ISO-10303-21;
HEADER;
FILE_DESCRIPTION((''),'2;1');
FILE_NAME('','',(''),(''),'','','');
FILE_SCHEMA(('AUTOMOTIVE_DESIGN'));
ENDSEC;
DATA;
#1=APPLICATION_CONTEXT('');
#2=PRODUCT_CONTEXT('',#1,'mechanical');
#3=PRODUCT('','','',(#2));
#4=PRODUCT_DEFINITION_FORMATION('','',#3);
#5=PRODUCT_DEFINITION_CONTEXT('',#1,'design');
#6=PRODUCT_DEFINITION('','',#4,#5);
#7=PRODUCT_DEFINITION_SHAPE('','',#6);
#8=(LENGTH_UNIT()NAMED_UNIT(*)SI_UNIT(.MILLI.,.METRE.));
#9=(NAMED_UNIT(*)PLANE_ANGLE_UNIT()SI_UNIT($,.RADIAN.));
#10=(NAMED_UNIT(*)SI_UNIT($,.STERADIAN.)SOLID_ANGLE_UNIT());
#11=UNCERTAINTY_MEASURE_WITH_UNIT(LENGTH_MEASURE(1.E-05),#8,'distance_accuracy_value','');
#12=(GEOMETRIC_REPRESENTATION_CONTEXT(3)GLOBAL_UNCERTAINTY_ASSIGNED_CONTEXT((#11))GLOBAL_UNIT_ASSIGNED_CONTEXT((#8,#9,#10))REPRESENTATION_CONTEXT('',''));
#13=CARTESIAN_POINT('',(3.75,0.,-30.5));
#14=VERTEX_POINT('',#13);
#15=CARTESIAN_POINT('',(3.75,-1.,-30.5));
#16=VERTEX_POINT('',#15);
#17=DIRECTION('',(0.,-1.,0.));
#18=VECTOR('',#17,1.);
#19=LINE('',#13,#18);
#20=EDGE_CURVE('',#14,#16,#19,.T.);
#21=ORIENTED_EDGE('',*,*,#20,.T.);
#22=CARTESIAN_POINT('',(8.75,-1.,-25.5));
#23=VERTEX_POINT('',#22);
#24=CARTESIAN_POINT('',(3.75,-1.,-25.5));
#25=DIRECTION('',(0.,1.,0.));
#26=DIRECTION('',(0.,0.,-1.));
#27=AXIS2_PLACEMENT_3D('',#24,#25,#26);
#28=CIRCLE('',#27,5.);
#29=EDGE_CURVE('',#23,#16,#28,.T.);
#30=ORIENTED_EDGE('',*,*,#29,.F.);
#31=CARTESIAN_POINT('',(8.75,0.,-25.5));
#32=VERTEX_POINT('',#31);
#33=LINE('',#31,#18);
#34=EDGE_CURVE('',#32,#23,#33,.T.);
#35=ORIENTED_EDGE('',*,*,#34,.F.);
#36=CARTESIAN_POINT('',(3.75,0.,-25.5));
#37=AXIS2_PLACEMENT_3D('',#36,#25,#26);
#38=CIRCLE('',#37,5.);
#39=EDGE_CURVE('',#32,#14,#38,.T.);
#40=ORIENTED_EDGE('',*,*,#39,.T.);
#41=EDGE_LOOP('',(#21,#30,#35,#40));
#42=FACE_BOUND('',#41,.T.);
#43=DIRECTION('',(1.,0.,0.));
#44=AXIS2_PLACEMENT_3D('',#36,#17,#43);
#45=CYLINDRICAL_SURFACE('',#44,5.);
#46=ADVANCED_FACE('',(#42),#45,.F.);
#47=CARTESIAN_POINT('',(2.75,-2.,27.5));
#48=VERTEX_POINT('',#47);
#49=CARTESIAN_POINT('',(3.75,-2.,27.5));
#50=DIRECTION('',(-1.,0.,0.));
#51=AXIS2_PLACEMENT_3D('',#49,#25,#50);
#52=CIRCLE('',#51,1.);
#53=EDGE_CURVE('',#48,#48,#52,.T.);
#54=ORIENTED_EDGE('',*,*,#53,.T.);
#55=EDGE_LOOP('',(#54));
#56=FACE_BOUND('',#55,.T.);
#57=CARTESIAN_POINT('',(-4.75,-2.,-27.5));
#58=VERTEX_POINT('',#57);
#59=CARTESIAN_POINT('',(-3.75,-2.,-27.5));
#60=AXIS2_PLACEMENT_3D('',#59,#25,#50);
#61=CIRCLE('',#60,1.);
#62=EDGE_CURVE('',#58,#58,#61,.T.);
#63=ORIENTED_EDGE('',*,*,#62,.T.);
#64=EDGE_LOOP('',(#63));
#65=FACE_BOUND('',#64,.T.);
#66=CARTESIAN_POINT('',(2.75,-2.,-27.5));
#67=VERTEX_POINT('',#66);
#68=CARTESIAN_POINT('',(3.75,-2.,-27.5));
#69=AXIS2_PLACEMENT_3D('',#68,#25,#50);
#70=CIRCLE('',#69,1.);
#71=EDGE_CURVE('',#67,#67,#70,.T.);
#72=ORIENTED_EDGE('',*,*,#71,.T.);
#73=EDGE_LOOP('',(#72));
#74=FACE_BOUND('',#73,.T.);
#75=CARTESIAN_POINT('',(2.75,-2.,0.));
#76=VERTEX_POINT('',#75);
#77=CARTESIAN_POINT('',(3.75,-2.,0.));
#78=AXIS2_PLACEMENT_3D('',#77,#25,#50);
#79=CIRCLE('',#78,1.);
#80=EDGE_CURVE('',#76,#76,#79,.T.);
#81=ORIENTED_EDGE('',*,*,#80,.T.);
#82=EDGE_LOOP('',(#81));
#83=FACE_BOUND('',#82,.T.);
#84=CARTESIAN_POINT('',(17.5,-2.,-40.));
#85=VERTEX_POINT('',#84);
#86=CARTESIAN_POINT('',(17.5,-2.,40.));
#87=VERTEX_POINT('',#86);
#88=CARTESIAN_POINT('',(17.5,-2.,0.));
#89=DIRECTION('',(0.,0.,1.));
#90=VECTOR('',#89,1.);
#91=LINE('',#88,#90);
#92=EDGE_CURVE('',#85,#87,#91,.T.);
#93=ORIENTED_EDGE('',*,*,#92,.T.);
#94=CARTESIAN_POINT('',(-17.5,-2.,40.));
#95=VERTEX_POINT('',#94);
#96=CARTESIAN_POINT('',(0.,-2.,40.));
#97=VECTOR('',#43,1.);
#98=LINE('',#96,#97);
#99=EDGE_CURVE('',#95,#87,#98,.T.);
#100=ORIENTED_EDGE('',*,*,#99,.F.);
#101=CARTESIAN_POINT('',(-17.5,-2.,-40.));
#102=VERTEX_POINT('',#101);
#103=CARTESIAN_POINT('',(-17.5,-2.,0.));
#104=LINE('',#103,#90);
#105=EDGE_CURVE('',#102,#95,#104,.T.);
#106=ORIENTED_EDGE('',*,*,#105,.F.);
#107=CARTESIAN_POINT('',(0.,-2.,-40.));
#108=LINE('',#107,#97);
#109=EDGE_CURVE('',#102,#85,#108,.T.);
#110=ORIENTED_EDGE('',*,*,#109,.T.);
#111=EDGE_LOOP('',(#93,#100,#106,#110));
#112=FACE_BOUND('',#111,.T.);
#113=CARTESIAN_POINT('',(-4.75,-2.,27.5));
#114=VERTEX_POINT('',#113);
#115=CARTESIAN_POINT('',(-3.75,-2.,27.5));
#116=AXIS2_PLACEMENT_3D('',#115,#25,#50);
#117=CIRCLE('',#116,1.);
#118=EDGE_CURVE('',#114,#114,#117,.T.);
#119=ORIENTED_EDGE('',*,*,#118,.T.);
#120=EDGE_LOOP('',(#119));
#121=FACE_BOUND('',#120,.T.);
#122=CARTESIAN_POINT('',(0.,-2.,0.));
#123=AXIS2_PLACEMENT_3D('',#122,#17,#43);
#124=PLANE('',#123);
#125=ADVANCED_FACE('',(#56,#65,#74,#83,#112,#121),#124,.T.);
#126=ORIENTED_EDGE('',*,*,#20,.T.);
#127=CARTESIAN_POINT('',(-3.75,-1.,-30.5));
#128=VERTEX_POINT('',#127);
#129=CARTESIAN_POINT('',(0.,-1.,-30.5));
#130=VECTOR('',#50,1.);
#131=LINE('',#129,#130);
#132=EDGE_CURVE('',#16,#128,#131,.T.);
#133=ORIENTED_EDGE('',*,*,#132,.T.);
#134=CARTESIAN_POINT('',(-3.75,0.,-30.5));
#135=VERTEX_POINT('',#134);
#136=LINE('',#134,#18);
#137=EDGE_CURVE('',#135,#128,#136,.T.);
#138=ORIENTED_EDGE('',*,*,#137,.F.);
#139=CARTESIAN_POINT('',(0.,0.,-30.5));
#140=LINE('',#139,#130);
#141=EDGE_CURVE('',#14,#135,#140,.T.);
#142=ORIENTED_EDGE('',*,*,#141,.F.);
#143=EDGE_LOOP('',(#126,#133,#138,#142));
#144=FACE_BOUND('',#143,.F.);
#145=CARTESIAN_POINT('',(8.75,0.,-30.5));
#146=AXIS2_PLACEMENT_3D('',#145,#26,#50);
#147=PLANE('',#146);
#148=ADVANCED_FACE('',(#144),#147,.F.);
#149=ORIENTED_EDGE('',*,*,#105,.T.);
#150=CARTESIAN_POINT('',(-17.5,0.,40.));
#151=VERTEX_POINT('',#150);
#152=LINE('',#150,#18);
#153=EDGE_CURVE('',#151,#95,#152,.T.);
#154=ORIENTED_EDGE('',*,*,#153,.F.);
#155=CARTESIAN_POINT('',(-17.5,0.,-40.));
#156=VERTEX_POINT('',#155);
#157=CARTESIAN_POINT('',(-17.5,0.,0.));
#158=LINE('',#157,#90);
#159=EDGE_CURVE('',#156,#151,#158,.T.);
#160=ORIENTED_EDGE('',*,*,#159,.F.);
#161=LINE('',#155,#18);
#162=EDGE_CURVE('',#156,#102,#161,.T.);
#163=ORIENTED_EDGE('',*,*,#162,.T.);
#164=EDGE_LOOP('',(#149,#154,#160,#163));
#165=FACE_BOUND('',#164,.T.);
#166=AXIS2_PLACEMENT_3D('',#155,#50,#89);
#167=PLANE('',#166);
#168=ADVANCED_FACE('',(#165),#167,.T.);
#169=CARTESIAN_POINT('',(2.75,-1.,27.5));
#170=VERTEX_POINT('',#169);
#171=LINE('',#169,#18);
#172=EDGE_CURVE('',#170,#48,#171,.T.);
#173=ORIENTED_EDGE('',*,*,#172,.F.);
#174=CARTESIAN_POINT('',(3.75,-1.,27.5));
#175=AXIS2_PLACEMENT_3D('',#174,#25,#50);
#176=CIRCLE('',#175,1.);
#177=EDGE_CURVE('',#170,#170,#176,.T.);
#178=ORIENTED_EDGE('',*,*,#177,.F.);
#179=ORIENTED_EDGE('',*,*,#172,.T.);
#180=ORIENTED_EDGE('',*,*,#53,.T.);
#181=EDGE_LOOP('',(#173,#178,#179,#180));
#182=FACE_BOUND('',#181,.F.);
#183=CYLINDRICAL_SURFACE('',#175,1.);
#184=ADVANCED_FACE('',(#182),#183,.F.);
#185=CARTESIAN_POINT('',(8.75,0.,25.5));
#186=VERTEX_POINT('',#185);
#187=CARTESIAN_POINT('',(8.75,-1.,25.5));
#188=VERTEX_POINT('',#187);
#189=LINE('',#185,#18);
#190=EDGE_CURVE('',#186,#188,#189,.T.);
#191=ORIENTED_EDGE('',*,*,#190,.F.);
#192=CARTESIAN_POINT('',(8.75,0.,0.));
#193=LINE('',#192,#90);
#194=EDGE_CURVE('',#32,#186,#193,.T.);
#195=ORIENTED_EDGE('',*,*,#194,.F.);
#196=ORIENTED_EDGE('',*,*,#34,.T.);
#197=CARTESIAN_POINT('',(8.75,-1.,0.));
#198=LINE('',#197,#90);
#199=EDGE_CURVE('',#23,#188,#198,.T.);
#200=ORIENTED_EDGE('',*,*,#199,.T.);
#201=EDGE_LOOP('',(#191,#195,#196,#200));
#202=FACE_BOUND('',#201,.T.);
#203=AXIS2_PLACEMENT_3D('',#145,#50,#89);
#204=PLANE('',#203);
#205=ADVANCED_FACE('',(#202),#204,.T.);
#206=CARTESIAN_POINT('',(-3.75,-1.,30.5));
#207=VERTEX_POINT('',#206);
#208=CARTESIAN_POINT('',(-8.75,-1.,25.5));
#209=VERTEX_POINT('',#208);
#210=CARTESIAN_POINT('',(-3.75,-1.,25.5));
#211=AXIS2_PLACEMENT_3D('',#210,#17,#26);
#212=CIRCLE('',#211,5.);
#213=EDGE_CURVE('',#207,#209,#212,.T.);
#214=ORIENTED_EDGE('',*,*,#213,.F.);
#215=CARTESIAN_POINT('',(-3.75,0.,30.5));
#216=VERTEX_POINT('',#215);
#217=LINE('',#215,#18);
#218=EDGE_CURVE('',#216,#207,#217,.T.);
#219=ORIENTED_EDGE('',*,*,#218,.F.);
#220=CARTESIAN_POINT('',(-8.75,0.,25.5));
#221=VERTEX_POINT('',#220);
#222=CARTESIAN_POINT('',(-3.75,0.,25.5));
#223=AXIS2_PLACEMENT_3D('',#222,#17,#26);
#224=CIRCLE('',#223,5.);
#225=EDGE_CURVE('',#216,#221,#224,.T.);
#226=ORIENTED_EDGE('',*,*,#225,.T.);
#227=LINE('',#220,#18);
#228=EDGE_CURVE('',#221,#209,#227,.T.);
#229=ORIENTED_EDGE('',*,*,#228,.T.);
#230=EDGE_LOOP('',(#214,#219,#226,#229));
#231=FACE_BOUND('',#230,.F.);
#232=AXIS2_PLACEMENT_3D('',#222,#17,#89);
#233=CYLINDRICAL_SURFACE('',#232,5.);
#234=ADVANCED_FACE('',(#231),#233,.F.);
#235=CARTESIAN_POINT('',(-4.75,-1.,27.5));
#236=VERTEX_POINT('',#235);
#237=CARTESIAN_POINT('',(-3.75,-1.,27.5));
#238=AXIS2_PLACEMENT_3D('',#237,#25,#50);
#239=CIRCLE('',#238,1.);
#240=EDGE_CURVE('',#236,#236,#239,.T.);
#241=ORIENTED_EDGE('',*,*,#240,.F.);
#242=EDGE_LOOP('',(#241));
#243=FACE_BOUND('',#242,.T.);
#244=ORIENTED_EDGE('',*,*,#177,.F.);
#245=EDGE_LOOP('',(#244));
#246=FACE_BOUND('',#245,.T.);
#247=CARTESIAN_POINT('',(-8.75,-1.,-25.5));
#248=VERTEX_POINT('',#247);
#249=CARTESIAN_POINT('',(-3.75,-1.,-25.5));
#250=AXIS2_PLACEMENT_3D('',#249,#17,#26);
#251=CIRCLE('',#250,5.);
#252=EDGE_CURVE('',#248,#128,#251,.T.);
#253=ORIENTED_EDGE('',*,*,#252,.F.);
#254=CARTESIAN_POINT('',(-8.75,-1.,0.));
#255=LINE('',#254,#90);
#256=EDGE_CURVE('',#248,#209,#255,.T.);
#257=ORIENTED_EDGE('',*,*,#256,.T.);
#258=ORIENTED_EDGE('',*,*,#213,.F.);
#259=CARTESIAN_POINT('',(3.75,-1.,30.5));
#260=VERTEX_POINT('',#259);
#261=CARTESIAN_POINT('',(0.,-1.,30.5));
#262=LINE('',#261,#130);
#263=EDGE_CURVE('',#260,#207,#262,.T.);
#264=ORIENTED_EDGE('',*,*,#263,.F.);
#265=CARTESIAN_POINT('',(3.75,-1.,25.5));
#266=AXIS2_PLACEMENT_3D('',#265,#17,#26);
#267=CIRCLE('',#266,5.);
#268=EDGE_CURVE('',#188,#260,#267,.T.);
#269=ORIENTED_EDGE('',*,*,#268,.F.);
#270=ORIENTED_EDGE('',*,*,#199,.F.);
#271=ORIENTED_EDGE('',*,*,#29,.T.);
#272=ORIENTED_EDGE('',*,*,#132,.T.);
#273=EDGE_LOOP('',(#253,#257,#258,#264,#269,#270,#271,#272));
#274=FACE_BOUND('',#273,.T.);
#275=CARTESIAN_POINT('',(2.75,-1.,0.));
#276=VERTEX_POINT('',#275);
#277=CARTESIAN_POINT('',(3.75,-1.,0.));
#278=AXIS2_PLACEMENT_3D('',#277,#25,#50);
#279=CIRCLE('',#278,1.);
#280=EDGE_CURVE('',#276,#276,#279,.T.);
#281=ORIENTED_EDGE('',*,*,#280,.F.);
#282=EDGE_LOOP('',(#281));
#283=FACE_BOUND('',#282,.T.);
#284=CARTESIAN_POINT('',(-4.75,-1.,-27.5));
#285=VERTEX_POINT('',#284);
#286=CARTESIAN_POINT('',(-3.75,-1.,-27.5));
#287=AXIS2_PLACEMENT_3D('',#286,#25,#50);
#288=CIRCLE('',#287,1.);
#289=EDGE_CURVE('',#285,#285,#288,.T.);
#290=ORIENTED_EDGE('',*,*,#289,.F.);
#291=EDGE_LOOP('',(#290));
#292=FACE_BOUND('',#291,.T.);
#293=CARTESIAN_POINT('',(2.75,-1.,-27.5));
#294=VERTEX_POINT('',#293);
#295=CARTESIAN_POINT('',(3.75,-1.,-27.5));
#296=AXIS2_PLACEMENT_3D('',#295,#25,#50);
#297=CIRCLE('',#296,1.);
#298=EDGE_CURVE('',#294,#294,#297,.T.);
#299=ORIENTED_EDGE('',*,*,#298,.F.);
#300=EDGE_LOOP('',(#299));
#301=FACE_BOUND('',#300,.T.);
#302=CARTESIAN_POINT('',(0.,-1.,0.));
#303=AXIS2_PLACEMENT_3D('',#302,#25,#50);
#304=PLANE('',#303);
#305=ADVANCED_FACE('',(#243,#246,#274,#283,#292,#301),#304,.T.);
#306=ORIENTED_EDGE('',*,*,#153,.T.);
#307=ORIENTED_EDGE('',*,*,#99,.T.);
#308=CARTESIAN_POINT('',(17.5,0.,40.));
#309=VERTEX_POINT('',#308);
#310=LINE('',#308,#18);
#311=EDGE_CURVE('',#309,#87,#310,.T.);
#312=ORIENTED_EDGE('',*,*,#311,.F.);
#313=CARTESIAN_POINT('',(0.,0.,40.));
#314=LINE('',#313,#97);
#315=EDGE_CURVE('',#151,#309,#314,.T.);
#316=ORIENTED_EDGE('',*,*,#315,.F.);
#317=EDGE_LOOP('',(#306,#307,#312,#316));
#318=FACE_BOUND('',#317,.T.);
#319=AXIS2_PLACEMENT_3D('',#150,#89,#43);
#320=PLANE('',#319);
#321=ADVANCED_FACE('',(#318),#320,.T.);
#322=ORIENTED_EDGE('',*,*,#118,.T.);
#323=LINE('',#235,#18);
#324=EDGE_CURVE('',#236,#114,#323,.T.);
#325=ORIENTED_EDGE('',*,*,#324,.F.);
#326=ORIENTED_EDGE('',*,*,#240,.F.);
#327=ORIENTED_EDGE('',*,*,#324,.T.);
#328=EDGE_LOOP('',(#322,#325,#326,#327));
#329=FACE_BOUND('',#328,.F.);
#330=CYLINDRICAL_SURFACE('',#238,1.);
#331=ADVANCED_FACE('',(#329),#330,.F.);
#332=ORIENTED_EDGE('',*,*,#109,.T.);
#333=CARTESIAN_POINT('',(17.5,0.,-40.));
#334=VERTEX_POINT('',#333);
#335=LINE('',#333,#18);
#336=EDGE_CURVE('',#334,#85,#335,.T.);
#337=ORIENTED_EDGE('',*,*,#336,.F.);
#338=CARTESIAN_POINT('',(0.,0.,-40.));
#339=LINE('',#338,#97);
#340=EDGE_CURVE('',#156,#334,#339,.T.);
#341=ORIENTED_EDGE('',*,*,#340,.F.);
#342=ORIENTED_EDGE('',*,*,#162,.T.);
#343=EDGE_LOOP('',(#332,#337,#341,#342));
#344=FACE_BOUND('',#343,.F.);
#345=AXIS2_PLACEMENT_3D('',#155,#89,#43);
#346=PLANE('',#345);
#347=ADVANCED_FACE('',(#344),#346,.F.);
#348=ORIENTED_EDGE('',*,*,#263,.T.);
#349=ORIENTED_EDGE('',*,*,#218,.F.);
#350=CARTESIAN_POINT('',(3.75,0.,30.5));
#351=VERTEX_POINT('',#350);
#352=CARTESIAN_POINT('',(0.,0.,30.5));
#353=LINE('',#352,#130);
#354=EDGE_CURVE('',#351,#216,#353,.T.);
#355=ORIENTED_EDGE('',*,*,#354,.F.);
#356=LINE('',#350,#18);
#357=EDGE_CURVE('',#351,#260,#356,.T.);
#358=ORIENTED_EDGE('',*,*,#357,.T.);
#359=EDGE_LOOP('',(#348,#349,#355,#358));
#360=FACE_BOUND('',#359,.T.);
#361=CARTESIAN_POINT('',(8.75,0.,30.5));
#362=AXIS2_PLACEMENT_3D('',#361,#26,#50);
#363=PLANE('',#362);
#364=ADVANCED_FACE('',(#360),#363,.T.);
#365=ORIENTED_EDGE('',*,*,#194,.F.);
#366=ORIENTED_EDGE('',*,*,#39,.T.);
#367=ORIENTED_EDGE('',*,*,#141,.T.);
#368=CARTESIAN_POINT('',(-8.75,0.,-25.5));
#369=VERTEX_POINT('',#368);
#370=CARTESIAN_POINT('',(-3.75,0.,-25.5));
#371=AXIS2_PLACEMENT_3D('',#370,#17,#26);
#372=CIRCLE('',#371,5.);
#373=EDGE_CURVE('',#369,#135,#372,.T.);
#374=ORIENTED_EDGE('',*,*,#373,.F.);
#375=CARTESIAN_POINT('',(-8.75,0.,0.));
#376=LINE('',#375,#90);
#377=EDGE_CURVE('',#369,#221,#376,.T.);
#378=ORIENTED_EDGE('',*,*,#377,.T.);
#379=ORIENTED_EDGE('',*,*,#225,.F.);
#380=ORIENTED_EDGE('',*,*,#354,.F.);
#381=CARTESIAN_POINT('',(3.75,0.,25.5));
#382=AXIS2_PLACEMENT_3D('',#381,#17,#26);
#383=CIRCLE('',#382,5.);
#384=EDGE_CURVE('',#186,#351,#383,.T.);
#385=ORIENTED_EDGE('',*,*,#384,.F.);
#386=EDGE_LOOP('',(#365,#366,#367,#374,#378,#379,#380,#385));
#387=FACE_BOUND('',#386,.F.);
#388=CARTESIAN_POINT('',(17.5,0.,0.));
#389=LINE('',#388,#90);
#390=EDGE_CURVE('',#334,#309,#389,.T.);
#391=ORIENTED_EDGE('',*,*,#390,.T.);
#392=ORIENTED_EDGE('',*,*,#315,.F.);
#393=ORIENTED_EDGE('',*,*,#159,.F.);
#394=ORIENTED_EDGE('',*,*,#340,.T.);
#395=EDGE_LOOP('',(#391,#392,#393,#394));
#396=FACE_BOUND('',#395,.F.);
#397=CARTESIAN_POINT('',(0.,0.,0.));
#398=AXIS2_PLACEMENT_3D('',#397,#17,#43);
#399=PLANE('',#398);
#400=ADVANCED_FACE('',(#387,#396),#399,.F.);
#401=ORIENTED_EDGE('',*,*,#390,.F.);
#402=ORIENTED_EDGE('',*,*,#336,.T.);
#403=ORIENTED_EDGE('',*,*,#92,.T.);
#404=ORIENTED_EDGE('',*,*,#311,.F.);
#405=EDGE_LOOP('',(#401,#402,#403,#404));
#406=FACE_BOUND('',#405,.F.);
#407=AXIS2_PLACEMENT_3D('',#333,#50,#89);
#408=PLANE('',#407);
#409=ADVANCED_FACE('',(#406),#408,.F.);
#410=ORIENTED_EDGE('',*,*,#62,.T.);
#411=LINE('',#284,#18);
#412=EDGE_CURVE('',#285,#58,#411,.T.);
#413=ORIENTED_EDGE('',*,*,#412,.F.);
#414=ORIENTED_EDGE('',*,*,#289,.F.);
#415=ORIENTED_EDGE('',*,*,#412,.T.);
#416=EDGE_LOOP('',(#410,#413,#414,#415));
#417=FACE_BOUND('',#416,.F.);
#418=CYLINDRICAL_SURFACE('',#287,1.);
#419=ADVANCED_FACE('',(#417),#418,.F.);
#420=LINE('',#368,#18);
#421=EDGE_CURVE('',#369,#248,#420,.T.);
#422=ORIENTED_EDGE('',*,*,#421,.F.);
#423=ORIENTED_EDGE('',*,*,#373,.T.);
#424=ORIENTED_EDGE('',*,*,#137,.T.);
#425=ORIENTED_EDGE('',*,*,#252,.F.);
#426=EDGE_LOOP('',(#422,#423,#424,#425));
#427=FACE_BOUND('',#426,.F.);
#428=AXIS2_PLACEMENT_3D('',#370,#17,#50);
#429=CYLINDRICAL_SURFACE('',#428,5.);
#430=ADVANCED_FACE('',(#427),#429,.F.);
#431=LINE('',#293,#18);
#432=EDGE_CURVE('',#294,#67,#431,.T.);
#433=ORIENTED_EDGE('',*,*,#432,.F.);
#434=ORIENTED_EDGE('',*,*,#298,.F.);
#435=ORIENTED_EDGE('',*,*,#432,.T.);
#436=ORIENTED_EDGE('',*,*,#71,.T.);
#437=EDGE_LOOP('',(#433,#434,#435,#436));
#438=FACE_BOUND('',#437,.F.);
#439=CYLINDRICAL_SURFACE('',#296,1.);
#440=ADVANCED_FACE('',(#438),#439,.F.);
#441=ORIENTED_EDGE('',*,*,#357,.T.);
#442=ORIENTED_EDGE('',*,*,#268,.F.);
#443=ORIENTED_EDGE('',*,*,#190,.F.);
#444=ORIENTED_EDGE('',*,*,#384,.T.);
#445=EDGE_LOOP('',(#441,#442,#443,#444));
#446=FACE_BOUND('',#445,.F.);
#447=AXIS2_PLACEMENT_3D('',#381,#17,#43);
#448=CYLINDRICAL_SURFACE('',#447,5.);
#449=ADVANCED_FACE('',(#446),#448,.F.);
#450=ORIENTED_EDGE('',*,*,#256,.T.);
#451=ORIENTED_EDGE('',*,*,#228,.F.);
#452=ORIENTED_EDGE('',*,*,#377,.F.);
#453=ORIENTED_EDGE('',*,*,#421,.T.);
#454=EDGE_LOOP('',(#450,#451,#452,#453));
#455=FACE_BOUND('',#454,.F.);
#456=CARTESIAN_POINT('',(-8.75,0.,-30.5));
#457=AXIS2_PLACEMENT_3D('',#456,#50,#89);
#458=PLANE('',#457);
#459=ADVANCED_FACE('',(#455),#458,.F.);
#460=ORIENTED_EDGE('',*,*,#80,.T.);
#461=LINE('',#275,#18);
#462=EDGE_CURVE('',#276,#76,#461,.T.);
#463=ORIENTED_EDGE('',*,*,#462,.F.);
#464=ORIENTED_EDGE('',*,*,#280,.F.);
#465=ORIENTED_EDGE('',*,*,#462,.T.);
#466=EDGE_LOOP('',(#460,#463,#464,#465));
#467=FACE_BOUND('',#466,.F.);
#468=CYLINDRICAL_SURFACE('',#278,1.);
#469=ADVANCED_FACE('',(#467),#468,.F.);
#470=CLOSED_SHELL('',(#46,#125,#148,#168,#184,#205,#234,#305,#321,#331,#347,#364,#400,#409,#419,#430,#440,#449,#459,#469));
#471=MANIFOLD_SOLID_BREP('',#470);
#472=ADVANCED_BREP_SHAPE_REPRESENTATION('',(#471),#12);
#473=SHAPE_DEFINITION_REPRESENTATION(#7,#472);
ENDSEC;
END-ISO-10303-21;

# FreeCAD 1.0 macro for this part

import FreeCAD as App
import Part
import Sketcher
Q = App.Units.Quantity


def edges_at(feature, points):
    """Names of the edges that pass closest to the given points."""
    edges = feature.Shape.Edges
    near = lambda p: min(range(len(edges)), key=lambda i: edges[i].distToShape(Part.Vertex(*p))[0])
    return sorted({f"Edge{near(p) + 1}" for p in points})

doc = App.newDocument("Part")
body = doc.addObject("PartDesign::Body", "Body")

sketch1 = body.newObject("Sketcher::SketchObject", "Sketch")
sketch1.AttachmentSupport = (doc.getObject("XZ_Plane"), [""])
sketch1.MapMode = "FlatFace"
sketch1.addGeometry([
    Part.LineSegment(App.Vector(-18, 40, 0), App.Vector(-18, -40, 0)),
    Part.LineSegment(App.Vector(-18, -40, 0), App.Vector(18, -40, 0)),
    Part.LineSegment(App.Vector(18, -40, 0), App.Vector(18, 40, 0)),
    Part.LineSegment(App.Vector(18, 40, 0), App.Vector(-18, 40, 0)),
], False)
sketch1.addConstraint([
    Sketcher.Constraint("Coincident", 0, 2, 1, 1),
    Sketcher.Constraint("Coincident", 1, 2, 2, 1),
    Sketcher.Constraint("Coincident", 2, 2, 3, 1),
    Sketcher.Constraint("Coincident", 3, 2, 0, 1),
    Sketcher.Constraint("Vertical", 0),
    Sketcher.Constraint("Horizontal", 1),
    Sketcher.Constraint("Vertical", 2),
    Sketcher.Constraint("Horizontal", 3),
    Sketcher.Constraint("Symmetric", 0, 2, 2, 2, -1, 1),
    Sketcher.Constraint("DistanceX", 1, 1, 1, 2, Q("35 mm")),
    Sketcher.Constraint("DistanceY", 0, 2, 0, 1, Q("80 mm")),
])
pad1 = body.newObject("PartDesign::Pad", "Pad")
pad1.Profile = sketch1
pad1.Length = 2

sketch2 = body.newObject("Sketcher::SketchObject", "Sketch001")
sketch2.AttachmentSupport = (doc.getObject("XZ_Plane"), [""])
sketch2.MapMode = "FlatFace"
sketch2.addGeometry([
    Part.LineSegment(App.Vector(9, 30, 0), App.Vector(9, -30, 0)),
    Part.LineSegment(App.Vector(9, -30, 0), App.Vector(-9, -30, 0)),
    Part.LineSegment(App.Vector(-9, -30, 0), App.Vector(-9, 30, 0)),
    Part.LineSegment(App.Vector(-9, 30, 0), App.Vector(9, 30, 0)),
], False)
sketch2.addConstraint([
    Sketcher.Constraint("Coincident", 0, 2, 1, 1),
    Sketcher.Constraint("Coincident", 1, 2, 2, 1),
    Sketcher.Constraint("Coincident", 2, 2, 3, 1),
    Sketcher.Constraint("Coincident", 3, 2, 0, 1),
    Sketcher.Constraint("Vertical", 0),
    Sketcher.Constraint("Horizontal", 1),
    Sketcher.Constraint("Vertical", 2),
    Sketcher.Constraint("Horizontal", 3),
    Sketcher.Constraint("Symmetric", 0, 2, 2, 2, -1, 1),
    Sketcher.Constraint("DistanceY", 0, 2, 0, 1, Q("61 mm")),
    Sketcher.Constraint("DistanceX", 1, 2, 1, 1, Q("17.5 mm")),
])
pocket1 = body.newObject("PartDesign::Pocket", "Pocket")
pocket1.Profile = sketch2
pocket1.Length = 1
pocket1.Reversed = True

sketch3 = body.newObject("Sketcher::SketchObject", "Sketch002")
sketch3.AttachmentSupport = (doc.getObject("XZ_Plane"), [""])
sketch3.MapMode = "FlatFace"
sketch3.AttachmentOffset = App.Placement(App.Vector(0, 0, 1), App.Rotation())
sketch3.addGeometry([
    Part.Circle(App.Vector(3.8, 27.5, 0), App.Vector(0, 0, 1), 1),
    Part.Circle(App.Vector(3.8, 0, 0), App.Vector(0, 0, 1), 1),
    Part.Circle(App.Vector(3.8, -27.5, 0), App.Vector(0, 0, 1), 1),
    Part.Circle(App.Vector(-3.8, 27.5, 0), App.Vector(0, 0, 1), 1),
    Part.Circle(App.Vector(-3.8, -27.5, 0), App.Vector(0, 0, 1), 1),
], False)
sketch3.addConstraint([
    Sketcher.Constraint("Equal", 0, 1),
    Sketcher.Constraint("Equal", 1, 2),
    Sketcher.Constraint("Equal", 2, 3),
    Sketcher.Constraint("Equal", 3, 4),
    Sketcher.Constraint("Symmetric", 2, 3, 3, 3, -1, 1),
    Sketcher.Constraint("Symmetric", 0, 3, 4, 3, -1, 1),
    Sketcher.Constraint("Symmetric", 0, 3, 3, 3, -2),
    Sketcher.Constraint("PointOnObject", 1, 3, -1),
    Sketcher.Constraint("Vertical", 0, 3, 1, 3),
    Sketcher.Constraint("Diameter", 0, Q("2 mm")),
    Sketcher.Constraint("DistanceY", 2, 3, 0, 3, Q("55 mm")),
    Sketcher.Constraint("DistanceX", 3, 3, 0, 3, Q("7.5 mm")),
])
pocket2 = body.newObject("PartDesign::Pocket", "Pocket001")
pocket2.Profile = sketch3
pocket2.Length = 25
pocket2.Reversed = True
doc.recompute()

fillet = body.newObject("PartDesign::Fillet", "Fillet")
fillet.Base = (pocket2, edges_at(pocket2, [
    (-8.75, -0.5, 30.5),
    (8.75, -0.5, 30.5),
    (-8.75, -0.5, -30.5),
    (8.75, -0.5, -30.5),
]))
fillet.Radius = 5

doc.recompute()
